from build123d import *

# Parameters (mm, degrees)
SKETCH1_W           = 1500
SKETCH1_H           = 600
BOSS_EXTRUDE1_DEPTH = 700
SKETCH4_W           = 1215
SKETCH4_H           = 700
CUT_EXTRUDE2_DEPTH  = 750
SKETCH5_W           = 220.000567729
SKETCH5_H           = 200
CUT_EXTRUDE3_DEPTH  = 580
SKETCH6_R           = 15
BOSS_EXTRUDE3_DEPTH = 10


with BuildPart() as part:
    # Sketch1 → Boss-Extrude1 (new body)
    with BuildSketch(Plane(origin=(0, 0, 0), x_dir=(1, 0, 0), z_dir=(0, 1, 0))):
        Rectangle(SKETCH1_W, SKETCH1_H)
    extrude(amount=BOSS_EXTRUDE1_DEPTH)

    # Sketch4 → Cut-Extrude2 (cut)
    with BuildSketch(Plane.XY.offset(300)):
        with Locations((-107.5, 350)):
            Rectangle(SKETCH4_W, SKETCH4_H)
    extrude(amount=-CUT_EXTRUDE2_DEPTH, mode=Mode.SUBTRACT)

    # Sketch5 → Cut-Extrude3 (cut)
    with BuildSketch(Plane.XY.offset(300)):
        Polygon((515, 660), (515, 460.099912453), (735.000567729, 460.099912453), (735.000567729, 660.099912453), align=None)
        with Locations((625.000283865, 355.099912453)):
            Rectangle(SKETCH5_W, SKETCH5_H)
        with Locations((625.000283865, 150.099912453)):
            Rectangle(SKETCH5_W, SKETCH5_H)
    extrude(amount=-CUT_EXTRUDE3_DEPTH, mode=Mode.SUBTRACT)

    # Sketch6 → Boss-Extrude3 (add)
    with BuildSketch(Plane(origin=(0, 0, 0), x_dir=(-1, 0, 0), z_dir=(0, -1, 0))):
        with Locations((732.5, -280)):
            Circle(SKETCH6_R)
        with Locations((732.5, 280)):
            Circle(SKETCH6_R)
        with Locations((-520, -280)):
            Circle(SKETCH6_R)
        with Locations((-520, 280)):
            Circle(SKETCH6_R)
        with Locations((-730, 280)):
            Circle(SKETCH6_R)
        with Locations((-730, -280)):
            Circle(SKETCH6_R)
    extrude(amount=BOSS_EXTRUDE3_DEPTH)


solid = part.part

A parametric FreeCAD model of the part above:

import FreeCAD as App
import Part
import Sketcher

V = App.Vector


def add_polygon(sketch, points):
    """Adds a closed chain of lines whose ends are joined by coincident constraints."""
    first, n = sketch.GeometryCount, len(points)
    for a, b in zip(points, points[1:] + points[:1]):
        sketch.addGeometry(Part.LineSegment(App.Vector(*a, 0), App.Vector(*b, 0)), False)
    for i in range(n):
        sketch.addConstraint(Sketcher.Constraint("Coincident", first + i, 2, first + (i + 1) % n, 1))

doc = App.newDocument("Part")
body = doc.addObject("PartDesign::Body", "Body")
body.AllowCompound = True

# Sketch on XZ plane
sketch1 = body.newObject("Sketcher::SketchObject", "Sketch")
sketch1.AttachmentSupport = (doc.getObject("XZ_Plane"), [""])
sketch1.MapMode = "FlatFace"
add_polygon(sketch1, [(-750, -300), (-750, 300), (750, 300), (750, -300)])  # lines 0-3
sketch1.addConstraint([
    Sketcher.Constraint("Vertical", 0),
    Sketcher.Constraint("Horizontal", 1),
    Sketcher.Constraint("Vertical", 2),
    Sketcher.Constraint("Horizontal", 3),
    Sketcher.Constraint("Symmetric", 0, 2, 2, 2, -1, 1),
    Sketcher.Constraint("DistanceX", 1, 1, 1, 2, 1500.0),
    Sketcher.Constraint("DistanceY", 0, 1, 0, 2, 600.0),
])
pad1 = body.newObject("PartDesign::Pad", "Pad")
pad1.Profile = sketch1
pad1.Length = 700
pad1.Reversed = True

# Sketch on XY plane
sketch2 = body.newObject("Sketcher::SketchObject", "Sketch001")
sketch2.AttachmentSupport = (doc.getObject("XY_Plane"), [""])
sketch2.MapMode = "FlatFace"
sketch2.AttachmentOffset = App.Placement(V(0, 0, 300), App.Rotation())
add_polygon(sketch2, [(-715, 700), (-715, 0), (500, 0), (500, 700)])  # lines 0-3
sketch2.addConstraint([
    Sketcher.Constraint("Vertical", 0),
    Sketcher.Constraint("Horizontal", 1),
    Sketcher.Constraint("Vertical", 2),
    Sketcher.Constraint("Horizontal", 3),
    Sketcher.Constraint("PointOnObject", 0, 2, -1),
    Sketcher.Constraint("DistanceX", 1, 1, 1, 2, 1215.0),
    Sketcher.Constraint("DistanceY", 0, 2, 0, 1, 700.0),
    Sketcher.Constraint("DistanceX", 0, 2, -1, 1, 715.0),
])
pocket1 = body.newObject("PartDesign::Pocket", "Pocket")
pocket1.Profile = sketch2
pocket1.Length = 750

# Sketch on XY plane
sketch3 = body.newObject("Sketcher::SketchObject", "Sketch002")
sketch3.AttachmentSupport = (doc.getObject("XY_Plane"), [""])
sketch3.MapMode = "FlatFace"
sketch3.AttachmentOffset = App.Placement(V(0, 0, 300), App.Rotation())
add_polygon(sketch3, [(515, 660), (515, 460.099912), (735.000568, 460.099912), (735.000568, 660.099912)])  # lines 0-3
add_polygon(sketch3, [(515, 455.099912), (515, 255.099912), (735.000568, 255.099912), (735.000568, 455.099912)])  # lines 4-7
add_polygon(sketch3, [(515, 250.099912), (515, 50.099912), (735.000568, 50.099912), (735.000568, 250.099912)])  # lines 8-11
sketch3.addConstraint([
    Sketcher.Constraint("Vertical", 0),
    Sketcher.Constraint("Horizontal", 1),
    Sketcher.Constraint("Vertical", 2),
    Sketcher.Constraint("Vertical", 4),
    Sketcher.Constraint("Horizontal", 5),
    Sketcher.Constraint("Vertical", 6),
    Sketcher.Constraint("Horizontal", 7),
    Sketcher.Constraint("Vertical", 8),
    Sketcher.Constraint("Horizontal", 9),
    Sketcher.Constraint("Vertical", 10),
    Sketcher.Constraint("Horizontal", 11),
    Sketcher.Constraint("Vertical", 3, 2, 4, 2),
    Sketcher.Constraint("Vertical", 2, 2, 5, 2),
    Sketcher.Constraint("Vertical", 7, 2, 8, 2),
    Sketcher.Constraint("Vertical", 6, 2, 9, 2),
    Sketcher.Constraint("Equal", 2, 4),
    Sketcher.Constraint("Equal", 6, 8),
    Sketcher.Constraint("DistanceY", 2, 1, 2, 2, 200.0),
    Sketcher.Constraint("DistanceX", -1, 1, 0, 2, 515.0),
    Sketcher.Constraint("DistanceY", -1, 1, 3, 2, 660.0),
    Sketcher.Constraint("DistanceY", 4, 2, 0, 2, 205.0),
    Sketcher.Constraint("DistanceY", 8, 2, 4, 2, 205.0),
    Sketcher.Constraint("Distance", 3, 220.00059),
    Sketcher.Constraint("DistanceY", 0, 2, 0, 1, 199.900088),
])
pocket2 = body.newObject("PartDesign::Pocket", "Pocket001")
pocket2.Profile = sketch3
pocket2.Length = 580

# Sketch on XZ plane
sketch4 = body.newObject("Sketcher::SketchObject", "Sketch003")
sketch4.AttachmentSupport = (doc.getObject("XZ_Plane"), [""])
sketch4.MapMode = "FlatFace"
sketch4.addGeometry([
    Part.Circle(V(-732.5, 280, 0), V(0, 0, 1), 15),  # 0
    Part.Circle(V(-732.5, -280, 0), V(0, 0, 1), 15),  # 1
    Part.Circle(V(520, 280, 0), V(0, 0, 1), 15),  # 2
    Part.Circle(V(520, -280, 0), V(0, 0, 1), 15),  # 3
    Part.Circle(V(730, -280, 0), V(0, 0, 1), 15),  # 4
    Part.Circle(V(730, 280, 0), V(0, 0, 1), 15),  # 5
], False)
sketch4.addConstraint([
    Sketcher.Constraint("Equal", 0, 1),
    Sketcher.Constraint("Equal", 1, 2),
    Sketcher.Constraint("Equal", 2, 3),
    Sketcher.Constraint("Equal", 3, 4),
    Sketcher.Constraint("Equal", 4, 5),
    Sketcher.Constraint("Symmetric", 0, 3, 1, 3, -1),
    Sketcher.Constraint("Symmetric", 2, 3, 3, 3, -1),
    Sketcher.Constraint("Symmetric", 4, 3, 5, 3, -1),
    Sketcher.Constraint("Horizontal", 0, 3, 2, 3),
    Sketcher.Constraint("Horizontal", 3, 3, 4, 3),
    Sketcher.Constraint("Diameter", 0, 30.0),
    Sketcher.Constraint("DistanceY", -1, 1, 0, 3, 280.0),
    Sketcher.Constraint("DistanceX", -1, 1, 2, 3, 520.0),
    Sketcher.Constraint("DistanceX", -1, 1, 4, 3, 730.0),
    Sketcher.Constraint("DistanceX", 0, 3, -1, 1, 732.5),
])
pad2 = body.newObject("PartDesign::Pad", "Pad001")
pad2.Profile = sketch4
pad2.Length = 10

doc.recompute()
